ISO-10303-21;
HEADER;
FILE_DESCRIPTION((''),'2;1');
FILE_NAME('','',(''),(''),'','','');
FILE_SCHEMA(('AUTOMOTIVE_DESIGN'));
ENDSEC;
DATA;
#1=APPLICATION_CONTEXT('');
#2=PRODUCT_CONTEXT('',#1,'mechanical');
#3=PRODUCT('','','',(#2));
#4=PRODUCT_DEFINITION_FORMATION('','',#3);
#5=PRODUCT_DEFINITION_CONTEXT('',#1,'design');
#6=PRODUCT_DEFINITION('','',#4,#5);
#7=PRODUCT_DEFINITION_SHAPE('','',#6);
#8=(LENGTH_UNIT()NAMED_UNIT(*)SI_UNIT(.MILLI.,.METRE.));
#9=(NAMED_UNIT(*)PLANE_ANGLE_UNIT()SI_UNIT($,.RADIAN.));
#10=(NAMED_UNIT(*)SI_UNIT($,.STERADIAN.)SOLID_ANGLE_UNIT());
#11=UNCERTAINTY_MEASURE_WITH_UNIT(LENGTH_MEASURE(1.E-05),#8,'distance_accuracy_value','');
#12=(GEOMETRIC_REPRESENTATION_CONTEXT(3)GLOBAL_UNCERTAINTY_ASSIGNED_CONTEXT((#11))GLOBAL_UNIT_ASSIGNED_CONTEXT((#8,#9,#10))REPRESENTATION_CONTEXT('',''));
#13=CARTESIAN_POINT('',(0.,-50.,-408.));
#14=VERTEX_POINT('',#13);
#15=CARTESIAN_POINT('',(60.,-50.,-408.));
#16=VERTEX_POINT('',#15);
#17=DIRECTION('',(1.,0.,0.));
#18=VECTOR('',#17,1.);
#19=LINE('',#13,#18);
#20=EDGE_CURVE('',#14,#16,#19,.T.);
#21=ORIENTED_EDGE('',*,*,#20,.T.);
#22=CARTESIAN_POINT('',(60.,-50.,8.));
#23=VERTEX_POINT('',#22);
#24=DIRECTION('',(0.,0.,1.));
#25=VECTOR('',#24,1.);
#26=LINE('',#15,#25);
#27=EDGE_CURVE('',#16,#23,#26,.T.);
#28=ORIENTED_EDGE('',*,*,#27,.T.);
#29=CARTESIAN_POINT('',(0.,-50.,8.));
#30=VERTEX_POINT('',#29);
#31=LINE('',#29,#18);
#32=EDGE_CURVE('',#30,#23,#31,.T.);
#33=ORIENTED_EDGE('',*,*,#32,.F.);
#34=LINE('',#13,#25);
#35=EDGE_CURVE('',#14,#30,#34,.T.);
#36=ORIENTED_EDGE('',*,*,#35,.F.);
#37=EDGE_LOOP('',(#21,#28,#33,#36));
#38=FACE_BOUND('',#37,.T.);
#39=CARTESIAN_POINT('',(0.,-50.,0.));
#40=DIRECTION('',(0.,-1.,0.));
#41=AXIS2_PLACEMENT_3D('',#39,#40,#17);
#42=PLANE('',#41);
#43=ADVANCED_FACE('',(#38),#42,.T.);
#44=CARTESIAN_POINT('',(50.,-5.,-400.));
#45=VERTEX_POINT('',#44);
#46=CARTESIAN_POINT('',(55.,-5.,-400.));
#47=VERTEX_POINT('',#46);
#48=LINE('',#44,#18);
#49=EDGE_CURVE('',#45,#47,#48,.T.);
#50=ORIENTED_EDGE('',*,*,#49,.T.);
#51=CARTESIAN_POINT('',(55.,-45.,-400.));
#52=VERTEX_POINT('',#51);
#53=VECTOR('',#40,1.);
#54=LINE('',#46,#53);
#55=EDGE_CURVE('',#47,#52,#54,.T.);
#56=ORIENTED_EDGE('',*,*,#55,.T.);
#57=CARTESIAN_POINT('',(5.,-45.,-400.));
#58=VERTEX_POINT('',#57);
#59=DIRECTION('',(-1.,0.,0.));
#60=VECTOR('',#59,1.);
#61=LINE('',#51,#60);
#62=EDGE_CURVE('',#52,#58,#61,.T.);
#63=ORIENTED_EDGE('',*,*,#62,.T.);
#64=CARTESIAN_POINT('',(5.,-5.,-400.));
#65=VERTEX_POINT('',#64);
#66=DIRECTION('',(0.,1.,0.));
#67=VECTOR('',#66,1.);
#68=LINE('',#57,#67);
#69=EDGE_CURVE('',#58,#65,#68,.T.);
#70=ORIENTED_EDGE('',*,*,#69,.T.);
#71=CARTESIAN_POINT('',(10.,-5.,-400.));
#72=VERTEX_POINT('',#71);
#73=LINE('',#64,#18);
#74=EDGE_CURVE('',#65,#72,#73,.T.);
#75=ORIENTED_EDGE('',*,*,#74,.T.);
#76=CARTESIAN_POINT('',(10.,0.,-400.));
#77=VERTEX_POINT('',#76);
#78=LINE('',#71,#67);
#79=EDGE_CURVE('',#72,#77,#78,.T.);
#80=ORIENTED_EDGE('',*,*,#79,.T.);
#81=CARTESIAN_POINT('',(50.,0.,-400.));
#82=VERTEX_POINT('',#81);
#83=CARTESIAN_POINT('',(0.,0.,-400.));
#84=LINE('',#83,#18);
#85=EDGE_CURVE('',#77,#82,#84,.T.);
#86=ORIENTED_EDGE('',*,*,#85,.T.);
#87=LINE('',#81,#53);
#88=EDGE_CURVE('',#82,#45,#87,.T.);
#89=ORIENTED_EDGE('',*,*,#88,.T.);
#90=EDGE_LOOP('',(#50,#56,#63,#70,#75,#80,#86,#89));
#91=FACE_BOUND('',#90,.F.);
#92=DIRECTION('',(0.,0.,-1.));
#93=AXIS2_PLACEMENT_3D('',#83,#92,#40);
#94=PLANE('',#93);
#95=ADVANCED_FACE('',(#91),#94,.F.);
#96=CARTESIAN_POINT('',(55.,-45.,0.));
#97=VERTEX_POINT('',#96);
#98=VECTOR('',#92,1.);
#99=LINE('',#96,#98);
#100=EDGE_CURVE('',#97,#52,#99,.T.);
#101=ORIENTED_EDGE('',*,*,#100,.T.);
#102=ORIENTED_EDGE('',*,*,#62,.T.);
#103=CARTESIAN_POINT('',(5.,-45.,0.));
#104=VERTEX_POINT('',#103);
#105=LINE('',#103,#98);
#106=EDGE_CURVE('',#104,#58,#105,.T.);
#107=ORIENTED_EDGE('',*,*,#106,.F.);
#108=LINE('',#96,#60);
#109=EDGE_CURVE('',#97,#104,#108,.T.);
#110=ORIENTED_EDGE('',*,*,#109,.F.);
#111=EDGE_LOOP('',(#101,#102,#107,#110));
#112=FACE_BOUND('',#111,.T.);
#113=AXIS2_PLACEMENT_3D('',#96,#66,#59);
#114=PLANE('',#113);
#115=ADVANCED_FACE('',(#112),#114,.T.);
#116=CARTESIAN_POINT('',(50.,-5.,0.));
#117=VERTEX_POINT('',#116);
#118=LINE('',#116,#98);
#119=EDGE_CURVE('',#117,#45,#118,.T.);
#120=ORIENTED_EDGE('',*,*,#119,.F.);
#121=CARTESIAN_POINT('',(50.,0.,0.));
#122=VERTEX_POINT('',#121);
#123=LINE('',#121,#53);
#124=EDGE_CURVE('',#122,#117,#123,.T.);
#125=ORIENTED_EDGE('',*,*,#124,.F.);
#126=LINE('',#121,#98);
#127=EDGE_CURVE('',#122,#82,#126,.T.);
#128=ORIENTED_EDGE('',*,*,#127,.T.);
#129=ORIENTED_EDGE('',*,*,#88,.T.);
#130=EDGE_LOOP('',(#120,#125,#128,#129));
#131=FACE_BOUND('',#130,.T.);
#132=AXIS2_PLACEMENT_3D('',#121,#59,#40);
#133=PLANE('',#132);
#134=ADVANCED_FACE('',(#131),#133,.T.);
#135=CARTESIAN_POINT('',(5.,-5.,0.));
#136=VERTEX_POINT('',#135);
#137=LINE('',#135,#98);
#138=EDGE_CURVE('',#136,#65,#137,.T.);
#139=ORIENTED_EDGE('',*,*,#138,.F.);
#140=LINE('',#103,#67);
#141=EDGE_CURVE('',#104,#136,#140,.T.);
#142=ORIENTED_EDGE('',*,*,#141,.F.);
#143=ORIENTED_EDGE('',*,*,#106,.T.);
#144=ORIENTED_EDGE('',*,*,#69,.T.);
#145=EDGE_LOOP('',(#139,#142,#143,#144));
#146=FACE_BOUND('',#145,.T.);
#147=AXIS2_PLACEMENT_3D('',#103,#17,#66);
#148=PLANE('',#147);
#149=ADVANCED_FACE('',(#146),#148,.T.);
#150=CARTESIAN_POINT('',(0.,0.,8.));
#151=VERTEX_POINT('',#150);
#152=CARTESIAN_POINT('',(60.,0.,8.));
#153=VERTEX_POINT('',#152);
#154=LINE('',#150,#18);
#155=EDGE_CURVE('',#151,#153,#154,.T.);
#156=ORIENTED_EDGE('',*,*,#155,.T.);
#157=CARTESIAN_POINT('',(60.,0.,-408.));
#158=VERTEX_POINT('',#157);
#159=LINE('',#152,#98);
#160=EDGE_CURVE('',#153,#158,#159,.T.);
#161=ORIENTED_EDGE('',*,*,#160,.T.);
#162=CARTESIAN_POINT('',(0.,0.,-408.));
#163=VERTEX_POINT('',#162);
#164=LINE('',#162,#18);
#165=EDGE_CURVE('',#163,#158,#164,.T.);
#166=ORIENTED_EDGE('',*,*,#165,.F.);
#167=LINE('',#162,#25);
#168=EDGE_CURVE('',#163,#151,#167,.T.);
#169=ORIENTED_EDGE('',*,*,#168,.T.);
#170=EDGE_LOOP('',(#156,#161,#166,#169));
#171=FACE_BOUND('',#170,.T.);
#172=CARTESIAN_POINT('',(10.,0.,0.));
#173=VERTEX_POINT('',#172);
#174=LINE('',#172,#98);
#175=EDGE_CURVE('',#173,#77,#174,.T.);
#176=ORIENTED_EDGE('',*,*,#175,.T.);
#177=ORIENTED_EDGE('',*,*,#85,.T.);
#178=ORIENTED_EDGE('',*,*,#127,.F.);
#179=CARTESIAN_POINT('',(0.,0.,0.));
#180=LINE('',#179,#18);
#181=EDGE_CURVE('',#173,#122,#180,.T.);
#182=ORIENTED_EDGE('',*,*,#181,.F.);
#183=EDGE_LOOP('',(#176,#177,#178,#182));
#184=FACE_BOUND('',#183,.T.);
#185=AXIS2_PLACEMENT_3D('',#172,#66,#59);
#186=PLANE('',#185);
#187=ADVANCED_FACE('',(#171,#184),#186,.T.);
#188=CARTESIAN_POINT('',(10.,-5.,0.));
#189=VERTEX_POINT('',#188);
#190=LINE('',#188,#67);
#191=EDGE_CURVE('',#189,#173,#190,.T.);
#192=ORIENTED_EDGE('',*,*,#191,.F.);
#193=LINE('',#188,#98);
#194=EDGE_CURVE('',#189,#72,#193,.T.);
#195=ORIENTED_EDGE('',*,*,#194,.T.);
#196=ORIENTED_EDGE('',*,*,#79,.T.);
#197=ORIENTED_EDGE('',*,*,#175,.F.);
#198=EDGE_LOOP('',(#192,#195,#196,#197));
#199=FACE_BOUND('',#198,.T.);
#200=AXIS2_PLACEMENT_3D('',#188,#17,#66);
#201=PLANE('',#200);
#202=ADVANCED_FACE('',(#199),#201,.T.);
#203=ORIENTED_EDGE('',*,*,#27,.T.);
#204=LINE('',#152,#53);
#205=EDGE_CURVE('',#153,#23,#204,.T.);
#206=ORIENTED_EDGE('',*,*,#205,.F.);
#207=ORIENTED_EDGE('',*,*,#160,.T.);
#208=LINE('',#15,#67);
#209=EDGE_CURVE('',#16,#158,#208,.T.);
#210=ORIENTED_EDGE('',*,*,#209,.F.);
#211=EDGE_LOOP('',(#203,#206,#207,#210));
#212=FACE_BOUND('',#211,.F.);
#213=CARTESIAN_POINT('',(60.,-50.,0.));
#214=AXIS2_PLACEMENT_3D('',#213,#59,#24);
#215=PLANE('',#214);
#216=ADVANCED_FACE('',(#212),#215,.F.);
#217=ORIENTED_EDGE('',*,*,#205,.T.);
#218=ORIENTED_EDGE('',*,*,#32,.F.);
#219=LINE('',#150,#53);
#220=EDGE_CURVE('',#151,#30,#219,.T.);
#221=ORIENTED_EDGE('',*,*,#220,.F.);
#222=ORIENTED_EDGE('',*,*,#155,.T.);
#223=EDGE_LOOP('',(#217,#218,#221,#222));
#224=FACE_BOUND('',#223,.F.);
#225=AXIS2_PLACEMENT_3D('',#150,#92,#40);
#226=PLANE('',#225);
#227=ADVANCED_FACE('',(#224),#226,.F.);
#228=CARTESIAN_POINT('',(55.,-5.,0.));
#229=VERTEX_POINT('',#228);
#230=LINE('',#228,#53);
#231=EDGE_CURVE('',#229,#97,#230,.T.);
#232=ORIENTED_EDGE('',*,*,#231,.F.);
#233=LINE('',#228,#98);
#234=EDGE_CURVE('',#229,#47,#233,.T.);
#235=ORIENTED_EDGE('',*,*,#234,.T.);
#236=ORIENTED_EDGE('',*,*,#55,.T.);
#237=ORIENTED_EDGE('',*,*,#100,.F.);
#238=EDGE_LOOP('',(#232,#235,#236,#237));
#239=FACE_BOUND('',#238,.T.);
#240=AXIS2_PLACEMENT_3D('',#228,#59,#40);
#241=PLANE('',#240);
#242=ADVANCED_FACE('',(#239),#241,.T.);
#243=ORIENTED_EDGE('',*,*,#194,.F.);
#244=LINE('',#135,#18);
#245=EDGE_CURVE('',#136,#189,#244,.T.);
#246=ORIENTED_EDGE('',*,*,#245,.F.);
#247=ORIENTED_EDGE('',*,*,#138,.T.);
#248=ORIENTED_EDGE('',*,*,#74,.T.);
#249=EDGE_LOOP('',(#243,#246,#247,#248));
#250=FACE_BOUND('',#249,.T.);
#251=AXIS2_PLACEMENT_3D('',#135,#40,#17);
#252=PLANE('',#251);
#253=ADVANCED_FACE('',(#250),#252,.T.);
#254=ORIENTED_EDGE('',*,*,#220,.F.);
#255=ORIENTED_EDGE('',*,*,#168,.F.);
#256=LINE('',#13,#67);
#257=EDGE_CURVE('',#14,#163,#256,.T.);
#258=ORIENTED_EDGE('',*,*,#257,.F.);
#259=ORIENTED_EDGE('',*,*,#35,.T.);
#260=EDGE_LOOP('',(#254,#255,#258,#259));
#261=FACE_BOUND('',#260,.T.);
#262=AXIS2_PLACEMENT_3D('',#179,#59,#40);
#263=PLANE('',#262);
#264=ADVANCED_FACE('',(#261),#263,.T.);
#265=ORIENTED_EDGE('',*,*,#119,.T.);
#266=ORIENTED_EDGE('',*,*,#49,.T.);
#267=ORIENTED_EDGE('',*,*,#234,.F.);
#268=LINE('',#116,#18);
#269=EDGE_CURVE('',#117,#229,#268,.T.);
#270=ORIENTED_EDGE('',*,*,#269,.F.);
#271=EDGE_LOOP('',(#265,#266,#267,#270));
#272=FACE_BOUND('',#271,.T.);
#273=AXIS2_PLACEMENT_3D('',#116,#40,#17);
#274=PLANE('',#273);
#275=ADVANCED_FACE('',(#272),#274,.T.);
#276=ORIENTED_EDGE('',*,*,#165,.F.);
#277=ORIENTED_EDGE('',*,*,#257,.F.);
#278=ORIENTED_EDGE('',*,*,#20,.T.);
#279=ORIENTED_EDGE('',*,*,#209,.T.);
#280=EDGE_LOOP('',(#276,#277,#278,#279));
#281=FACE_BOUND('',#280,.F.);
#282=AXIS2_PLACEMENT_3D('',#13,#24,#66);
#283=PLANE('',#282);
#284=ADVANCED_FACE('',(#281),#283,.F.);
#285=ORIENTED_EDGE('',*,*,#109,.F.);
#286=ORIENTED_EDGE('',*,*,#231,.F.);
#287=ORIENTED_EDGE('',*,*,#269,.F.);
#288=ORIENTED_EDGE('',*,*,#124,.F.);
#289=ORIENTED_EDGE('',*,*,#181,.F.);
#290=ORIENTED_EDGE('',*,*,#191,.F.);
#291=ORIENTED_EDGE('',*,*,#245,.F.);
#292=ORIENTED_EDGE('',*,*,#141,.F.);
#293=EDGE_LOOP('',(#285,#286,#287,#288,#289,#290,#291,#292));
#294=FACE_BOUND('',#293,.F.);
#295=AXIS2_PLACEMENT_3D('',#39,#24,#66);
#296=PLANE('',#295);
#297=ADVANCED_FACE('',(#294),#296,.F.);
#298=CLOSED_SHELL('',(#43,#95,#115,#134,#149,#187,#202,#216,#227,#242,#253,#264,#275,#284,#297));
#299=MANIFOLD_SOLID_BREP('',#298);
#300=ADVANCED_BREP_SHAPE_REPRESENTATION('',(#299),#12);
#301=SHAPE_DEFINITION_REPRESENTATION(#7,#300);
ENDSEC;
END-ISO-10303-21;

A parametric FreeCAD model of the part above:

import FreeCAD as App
import Part
import Sketcher

doc = App.newDocument("Part")
body = doc.addObject("PartDesign::Body", "Body")

# Sketch on XY plane
sketch1 = body.newObject("Sketcher::SketchObject", "Sketch")
sketch1.AttachmentSupport = (doc.getObject("XY_Plane"), [""])
sketch1.MapMode = "FlatFace"
sketch1.addGeometry([
    Part.LineSegment(App.Vector(10, 0, 0), App.Vector(0, 0, 0)),  # 0
    Part.LineSegment(App.Vector(0, 0, 0), App.Vector(0, -50, 0)),  # 1
    Part.LineSegment(App.Vector(0, -50, 0), App.Vector(60, -50, 0)),  # 2
    Part.LineSegment(App.Vector(60, -50, 0), App.Vector(60, 0, 0)),  # 3
    Part.LineSegment(App.Vector(60, 0, 0), App.Vector(50, 0, 0)),  # 4
    Part.LineSegment(App.Vector(50, 0, 0), App.Vector(50, -5, 0)),  # 5
    Part.LineSegment(App.Vector(50, -5, 0), App.Vector(55, -5, 0)),  # 6
    Part.LineSegment(App.Vector(55, -5, 0), App.Vector(55, -45, 0)),  # 7
    Part.LineSegment(App.Vector(55, -45, 0), App.Vector(5, -45, 0)),  # 8
    Part.LineSegment(App.Vector(5, -45, 0), App.Vector(5, -5, 0)),  # 9
    Part.LineSegment(App.Vector(5, -5, 0), App.Vector(10, -5, 0)),  # 10
    Part.LineSegment(App.Vector(10, -5, 0), App.Vector(10, 0, 0)),  # 11
], False)
sketch1.addConstraint([
    Sketcher.Constraint("Coincident", 0, 2, 1, 1),
    Sketcher.Constraint("Coincident", 1, 2, 2, 1),
    Sketcher.Constraint("Coincident", 2, 2, 3, 1),
    Sketcher.Constraint("Coincident", 3, 2, 4, 1),
    Sketcher.Constraint("Coincident", 4, 2, 5, 1),
    Sketcher.Constraint("Coincident", 5, 2, 6, 1),
    Sketcher.Constraint("Coincident", 6, 2, 7, 1),
    Sketcher.Constraint("Coincident", 7, 2, 8, 1),
    Sketcher.Constraint("Coincident", 8, 2, 9, 1),
    Sketcher.Constraint("Coincident", 9, 2, 10, 1),
    Sketcher.Constraint("Coincident", 10, 2, 11, 1),
    Sketcher.Constraint("Coincident", 11, 2, 0, 1),
    Sketcher.Constraint("Horizontal", 0),
    Sketcher.Constraint("Vertical", 1),
    Sketcher.Constraint("Horizontal", 2),
    Sketcher.Constraint("Vertical", 3),
    Sketcher.Constraint("Horizontal", 4),
    Sketcher.Constraint("Vertical", 5),
    Sketcher.Constraint("Horizontal", 6),
    Sketcher.Constraint("Vertical", 7),
    Sketcher.Constraint("Horizontal", 8),
    Sketcher.Constraint("Vertical", 9),
    Sketcher.Constraint("Horizontal", 10),
    Sketcher.Constraint("Vertical", 11),
    Sketcher.Constraint("Coincident", 0, 2, -1, 1),
    Sketcher.Constraint("PointOnObject", 3, 2, -1),
    Sketcher.Constraint("Horizontal", 6, 2, 9, 2),
    Sketcher.Constraint("Equal", 0, 4),
    Sketcher.Constraint("Equal", 6, 10),
    Sketcher.Constraint("Equal", 8, 1),
    Sketcher.Constraint("Equal", 10, 5),
    Sketcher.Constraint("DistanceX", 0, 2, 0, 1, 10.0),
    Sketcher.Constraint("DistanceX", 2, 1, 2, 2, 60.0),
    Sketcher.Constraint("DistanceX", 6, 1, 6, 2, 5.0),
    Sketcher.Constraint("DistanceY", 7, 2, 7, 1, 40.0),
])
pad1 = body.newObject("PartDesign::Pad", "Pad")
pad1.Profile = sketch1
pad1.Length = 400
pad1.Reversed = True

# Sketch on YZ plane
sketch2 = body.newObject("Sketcher::SketchObject", "Sketch001")
sketch2.AttachmentSupport = (doc.getObject("YZ_Plane"), [""])
sketch2.MapMode = "FlatFace"
sketch2.addGeometry([
    Part.LineSegment(App.Vector(-50, -408, 0), App.Vector(-50, -400, 0)),  # 0
    Part.LineSegment(App.Vector(-50, -400, 0), App.Vector(0, -400, 0)),  # 1
    Part.LineSegment(App.Vector(0, -400, 0), App.Vector(0, -408, 0)),  # 2
    Part.LineSegment(App.Vector(0, -408, 0), App.Vector(-50, -408, 0)),  # 3
    Part.LineSegment(App.Vector(0, 0, 0), App.Vector(-50, 0, 0)),  # 4
    Part.LineSegment(App.Vector(-50, 0, 0), App.Vector(-50, 8, 0)),  # 5
    Part.LineSegment(App.Vector(-50, 8, 0), App.Vector(0, 8, 0)),  # 6
    Part.LineSegment(App.Vector(0, 8, 0), App.Vector(0, 0, 0)),  # 7
], False)
sketch2.addConstraint([
    Sketcher.Constraint("Coincident", 0, 2, 1, 1),
    Sketcher.Constraint("Coincident", 1, 2, 2, 1),
    Sketcher.Constraint("Coincident", 2, 2, 3, 1),
    Sketcher.Constraint("Coincident", 3, 2, 0, 1),
    Sketcher.Constraint("Coincident", 4, 2, 5, 1),
    Sketcher.Constraint("Coincident", 5, 2, 6, 1),
    Sketcher.Constraint("Coincident", 6, 2, 7, 1),
    Sketcher.Constraint("Coincident", 7, 2, 4, 1),
    Sketcher.Constraint("Vertical", 0),
    Sketcher.Constraint("Horizontal", 1),
    Sketcher.Constraint("Vertical", 2),
    Sketcher.Constraint("Horizontal", 3),
    Sketcher.Constraint("Horizontal", 4),
    Sketcher.Constraint("Vertical", 5),
    Sketcher.Constraint("Horizontal", 6),
    Sketcher.Constraint("Vertical", 7),
    Sketcher.Constraint("Coincident", 7, 2, -1, 1),
    Sketcher.Constraint("PointOnObject", 1, 2, -2),
    Sketcher.Constraint("Vertical", 3, 2, 4, 2),
    Sketcher.Constraint("Equal", 2, 5),
    Sketcher.Constraint("DistanceX", 1, 1, 1, 2, 50.0),
    Sketcher.Constraint("DistanceY", 0, 1, 0, 2, 8.0),
    Sketcher.Constraint("DistanceY", 0, 2, -1, 1, 400.0),
])
pad2 = body.newObject("PartDesign::Pad", "Pad001")
pad2.Profile = sketch2
pad2.Length = 60

doc.recompute()
